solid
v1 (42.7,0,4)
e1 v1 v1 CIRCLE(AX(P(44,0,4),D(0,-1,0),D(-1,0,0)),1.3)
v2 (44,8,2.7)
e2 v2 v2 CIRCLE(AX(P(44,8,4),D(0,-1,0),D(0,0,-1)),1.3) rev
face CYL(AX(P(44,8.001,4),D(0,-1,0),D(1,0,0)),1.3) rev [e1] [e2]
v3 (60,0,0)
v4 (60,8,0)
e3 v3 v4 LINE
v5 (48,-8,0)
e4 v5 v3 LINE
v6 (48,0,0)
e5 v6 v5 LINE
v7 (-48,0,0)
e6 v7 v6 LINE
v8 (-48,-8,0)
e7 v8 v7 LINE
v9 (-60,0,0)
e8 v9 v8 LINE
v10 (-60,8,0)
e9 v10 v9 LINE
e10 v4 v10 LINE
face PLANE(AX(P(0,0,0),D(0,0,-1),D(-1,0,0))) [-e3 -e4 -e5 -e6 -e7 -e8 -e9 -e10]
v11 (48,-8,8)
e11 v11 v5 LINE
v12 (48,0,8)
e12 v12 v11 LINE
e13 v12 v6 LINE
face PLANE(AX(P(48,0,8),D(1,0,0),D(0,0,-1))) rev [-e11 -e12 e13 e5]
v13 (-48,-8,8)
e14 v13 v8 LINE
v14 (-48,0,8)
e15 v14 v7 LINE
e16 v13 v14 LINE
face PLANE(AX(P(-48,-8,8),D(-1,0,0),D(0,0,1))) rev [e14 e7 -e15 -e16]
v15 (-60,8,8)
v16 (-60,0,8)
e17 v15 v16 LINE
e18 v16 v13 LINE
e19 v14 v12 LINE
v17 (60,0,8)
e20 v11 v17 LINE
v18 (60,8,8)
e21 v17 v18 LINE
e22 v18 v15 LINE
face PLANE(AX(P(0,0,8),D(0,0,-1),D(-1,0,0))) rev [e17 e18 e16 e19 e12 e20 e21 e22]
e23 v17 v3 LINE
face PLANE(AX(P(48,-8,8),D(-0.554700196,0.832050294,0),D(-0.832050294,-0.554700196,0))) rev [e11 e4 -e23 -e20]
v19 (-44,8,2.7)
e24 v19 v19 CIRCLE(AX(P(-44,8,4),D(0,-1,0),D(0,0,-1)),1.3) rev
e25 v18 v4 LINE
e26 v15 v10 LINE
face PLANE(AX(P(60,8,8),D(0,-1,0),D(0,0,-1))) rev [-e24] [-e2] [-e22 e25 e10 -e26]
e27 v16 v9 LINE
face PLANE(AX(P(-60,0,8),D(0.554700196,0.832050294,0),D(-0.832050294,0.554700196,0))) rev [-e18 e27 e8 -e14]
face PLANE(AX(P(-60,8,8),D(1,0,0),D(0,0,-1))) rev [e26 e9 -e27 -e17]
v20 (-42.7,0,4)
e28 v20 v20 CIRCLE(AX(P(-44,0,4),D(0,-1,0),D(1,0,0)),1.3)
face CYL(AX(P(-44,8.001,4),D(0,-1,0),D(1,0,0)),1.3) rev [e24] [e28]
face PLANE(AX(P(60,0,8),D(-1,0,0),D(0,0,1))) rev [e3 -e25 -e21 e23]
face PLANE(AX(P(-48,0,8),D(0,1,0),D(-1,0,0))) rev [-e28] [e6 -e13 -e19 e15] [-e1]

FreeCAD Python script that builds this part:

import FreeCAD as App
import Part
import Sketcher
from FreeCAD import Vector
Q = App.Units.Quantity


def add_polygon(sketch, points):
    """Adds a closed chain of lines whose ends are joined by coincident constraints."""
    first, n = sketch.GeometryCount, len(points)
    for a, b in zip(points, points[1:] + points[:1]):
        sketch.addGeometry(Part.LineSegment(App.Vector(*a, 0), App.Vector(*b, 0)), False)
    for i in range(n):
        sketch.addConstraint(Sketcher.Constraint("Coincident", first + i, 2, first + (i + 1) % n, 1))

doc = App.newDocument("Part")
body = doc.addObject("PartDesign::Body", "Body")

# Sketch on XY plane
sketch1 = body.newObject("Sketcher::SketchObject", "Sketch")
sketch1.AttachmentSupport = (doc.getObject("XY_Plane"), [""])
sketch1.MapMode = "FlatFace"
add_polygon(sketch1, [(-48, 0), (48, 0), (48, -8), (60, 0), (60, 8), (-60, 8), (-60, 0), (-48, -8)])  # lines 0-7
sketch1.addConstraint([
    Sketcher.Constraint("Horizontal", 0),
    Sketcher.Constraint("Vertical", 1),
    Sketcher.Constraint("Vertical", 3),
    Sketcher.Constraint("Horizontal", 4),
    Sketcher.Constraint("Vertical", 5),
    Sketcher.Constraint("Vertical", 7),
    Sketcher.Constraint("Symmetric", 2, 2, 5, 2, -1, 1),
    Sketcher.Constraint("Symmetric", 0, 2, 7, 2, -1, 1),
    Sketcher.Constraint("PointOnObject", 2, 2, -1),
    Sketcher.Constraint("Horizontal", 1, 2, 6, 2),
    Sketcher.Constraint("Equal", 1, 3),
    Sketcher.Constraint("DistanceX", 0, 1, 0, 2, Q("96 mm")),
    Sketcher.Constraint("DistanceX", 4, 2, 4, 1, Q("120 mm")),
    Sketcher.Constraint("DistanceY", 1, 2, 1, 1, Q("8 mm")),
])
pad1 = body.newObject("PartDesign::Pad", "Pad")
pad1.Profile = sketch1
pad1.Length = 8

# Sketch on XZ plane
sketch2 = body.newObject("Sketcher::SketchObject", "Sketch001")
sketch2.AttachmentSupport = (doc.getObject("XZ_Plane"), [""])
sketch2.MapMode = "FlatFace"
sketch2.addGeometry(Part.Circle(Vector(-44, 4, 0), Vector(0, 0, 1), 1.3), False)
sketch2.addConstraint([
    Sketcher.Constraint("Diameter", 0, Q("2.6 mm")),
    Sketcher.Constraint("DistanceX", 0, 3, -1, 1, Q("44 mm")),
    Sketcher.Constraint("DistanceY", -1, 1, 0, 3, Q("4 mm")),
])
pocket1 = body.newObject("PartDesign::Pocket", "Pocket")
pocket1.Profile = sketch2
pocket1.Type = "UpToFirst"

# Sketch on XZ plane
sketch3 = body.newObject("Sketcher::SketchObject", "Sketch002")
sketch3.AttachmentSupport = (doc.getObject("XZ_Plane"), [""])
sketch3.MapMode = "FlatFace"
sketch3.addGeometry(Part.Circle(Vector(44, 4, 0), Vector(0, 0, 1), 1.3), False)
sketch3.addConstraint([
    Sketcher.Constraint("Diameter", 0, Q("2.6 mm")),
    Sketcher.Constraint("DistanceX", -1, 1, 0, 3, Q("44 mm")),
    Sketcher.Constraint("DistanceY", -1, 1, 0, 3, Q("4 mm")),
])
pocket2 = body.newObject("PartDesign::Pocket", "Pocket001")
pocket2.Profile = sketch3
pocket2.Type = "UpToFirst"

doc.recompute()
